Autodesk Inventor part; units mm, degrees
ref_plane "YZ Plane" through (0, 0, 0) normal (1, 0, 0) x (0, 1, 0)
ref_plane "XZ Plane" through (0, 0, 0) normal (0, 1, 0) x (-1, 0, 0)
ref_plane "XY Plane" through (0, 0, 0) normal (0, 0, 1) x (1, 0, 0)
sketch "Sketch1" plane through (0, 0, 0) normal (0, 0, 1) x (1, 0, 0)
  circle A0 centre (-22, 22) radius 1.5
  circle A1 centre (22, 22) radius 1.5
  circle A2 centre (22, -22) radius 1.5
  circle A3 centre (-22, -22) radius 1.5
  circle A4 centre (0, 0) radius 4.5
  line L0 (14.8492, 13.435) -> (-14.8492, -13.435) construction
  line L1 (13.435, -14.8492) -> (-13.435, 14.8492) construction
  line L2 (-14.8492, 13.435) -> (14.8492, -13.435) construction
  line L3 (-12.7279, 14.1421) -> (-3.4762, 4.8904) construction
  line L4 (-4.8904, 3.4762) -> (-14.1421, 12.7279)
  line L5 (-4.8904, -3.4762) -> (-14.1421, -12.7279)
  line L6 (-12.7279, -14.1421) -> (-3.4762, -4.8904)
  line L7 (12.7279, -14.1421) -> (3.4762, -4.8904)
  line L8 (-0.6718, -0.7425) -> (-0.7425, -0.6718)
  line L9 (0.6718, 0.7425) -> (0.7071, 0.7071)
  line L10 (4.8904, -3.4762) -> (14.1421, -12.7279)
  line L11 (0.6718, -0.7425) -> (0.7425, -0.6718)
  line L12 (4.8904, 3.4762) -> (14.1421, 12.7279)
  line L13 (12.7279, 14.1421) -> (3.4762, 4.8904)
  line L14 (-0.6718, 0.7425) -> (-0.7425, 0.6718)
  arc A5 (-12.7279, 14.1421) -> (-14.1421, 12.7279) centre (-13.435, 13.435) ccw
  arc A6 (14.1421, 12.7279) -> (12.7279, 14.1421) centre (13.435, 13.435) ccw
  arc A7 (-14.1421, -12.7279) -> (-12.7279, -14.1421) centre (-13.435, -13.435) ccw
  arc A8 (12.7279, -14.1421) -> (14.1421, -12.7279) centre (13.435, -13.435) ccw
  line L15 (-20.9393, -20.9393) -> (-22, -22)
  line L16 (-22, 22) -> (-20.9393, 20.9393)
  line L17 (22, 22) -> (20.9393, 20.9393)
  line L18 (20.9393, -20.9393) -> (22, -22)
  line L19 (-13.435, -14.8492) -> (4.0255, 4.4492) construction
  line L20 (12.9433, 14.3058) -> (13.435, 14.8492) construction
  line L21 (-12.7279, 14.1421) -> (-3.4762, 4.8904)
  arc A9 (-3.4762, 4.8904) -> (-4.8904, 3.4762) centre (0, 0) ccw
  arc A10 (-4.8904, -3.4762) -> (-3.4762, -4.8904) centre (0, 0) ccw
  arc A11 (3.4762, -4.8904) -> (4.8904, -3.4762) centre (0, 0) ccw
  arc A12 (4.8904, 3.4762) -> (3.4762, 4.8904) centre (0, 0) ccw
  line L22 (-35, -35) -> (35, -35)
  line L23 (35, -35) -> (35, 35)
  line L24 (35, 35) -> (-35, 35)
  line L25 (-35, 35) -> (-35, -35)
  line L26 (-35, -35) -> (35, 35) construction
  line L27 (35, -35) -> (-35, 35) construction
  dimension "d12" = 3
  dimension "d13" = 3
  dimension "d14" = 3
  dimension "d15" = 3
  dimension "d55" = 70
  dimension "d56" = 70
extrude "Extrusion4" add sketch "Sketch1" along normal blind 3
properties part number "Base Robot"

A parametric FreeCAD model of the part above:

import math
import FreeCAD as App
import Part
import Sketcher
from FreeCAD import Vector
Q = App.Units.Quantity


def add_polygon(sketch, points):
    """Adds a closed chain of lines whose ends are joined by coincident constraints."""
    first, n = sketch.GeometryCount, len(points)
    for a, b in zip(points, points[1:] + points[:1]):
        sketch.addGeometry(Part.LineSegment(App.Vector(*a, 0), App.Vector(*b, 0)), False)
    for i in range(n):
        sketch.addConstraint(Sketcher.Constraint("Coincident", first + i, 2, first + (i + 1) % n, 1))

doc = App.newDocument("Part")
body = doc.addObject("PartDesign::Body", "Body")

sketch1 = body.newObject("Sketcher::SketchObject", "Sketch")
sketch1.AttachmentSupport = (doc.getObject("XY_Plane"), [""])
sketch1.MapMode = "FlatFace"
add_polygon(sketch1, [(-35, 35), (-35, -35), (35, -35), (35, 35)])
sketch1.addGeometry(Part.Circle(Vector(-22, -22, 0), Vector(0, 0, 1), 1.5), False)
sketch1.addGeometry(Part.LineSegment(Vector(-14.1, -12.7, 0), Vector(-4.9, -3.5, 0)), False)
sketch1.addGeometry(Part.ArcOfCircle(Part.Circle(Vector(0, 0, 0), Vector(0, 0, 1), 6), math.radians(-144.59), math.radians(-125.41)), False)
sketch1.addGeometry(Part.LineSegment(Vector(-3.5, -4.9, 0), Vector(-12.7, -14.1, 0)), False)
sketch1.addGeometry(Part.ArcOfCircle(Part.Circle(Vector(-13.4, -13.4, 0), Vector(0, 0, 1), 1), math.radians(135), math.radians(315)), False)
sketch1.addGeometry(Part.Circle(Vector(22, -22, 0), Vector(0, 0, 1), 1.5), False)
sketch1.addGeometry(Part.ArcOfCircle(Part.Circle(Vector(13.4, -13.4, 0), Vector(0, 0, 1), 1), math.radians(-135), math.radians(45)), False)
sketch1.addGeometry(Part.LineSegment(Vector(12.7, -14.1, 0), Vector(3.5, -4.9, 0)), False)
sketch1.addGeometry(Part.ArcOfCircle(Part.Circle(Vector(0, 0, 0), Vector(0, 0, 1), 6), math.radians(-54.59), math.radians(-35.41)), False)
sketch1.addGeometry(Part.LineSegment(Vector(4.9, -3.5, 0), Vector(14.1, -12.7, 0)), False)
sketch1.addGeometry(Part.ArcOfCircle(Part.Circle(Vector(0, 0, 0), Vector(0, 0, 1), 6), math.radians(125.41), math.radians(144.59)), False)
sketch1.addGeometry(Part.LineSegment(Vector(-4.9, 3.5, 0), Vector(-14.1, 12.7, 0)), False)
sketch1.addGeometry(Part.ArcOfCircle(Part.Circle(Vector(-13.4, 13.4, 0), Vector(0, 0, 1), 1), math.radians(45), math.radians(225)), False)
sketch1.addGeometry(Part.LineSegment(Vector(-12.7, 14.1, 0), Vector(-3.5, 4.9, 0)), False)
sketch1.addGeometry(Part.Circle(Vector(-22, 22, 0), Vector(0, 0, 1), 1.5), False)
sketch1.addGeometry(Part.Circle(Vector(0, 0, 0), Vector(0, 0, 1), 4.5), False)
sketch1.addGeometry(Part.LineSegment(Vector(14.1, 12.7, 0), Vector(4.9, 3.5, 0)), False)
sketch1.addGeometry(Part.ArcOfCircle(Part.Circle(Vector(0, 0, 0), Vector(0, 0, 1), 6), math.radians(35.41), math.radians(54.59)), False)
sketch1.addGeometry(Part.LineSegment(Vector(3.5, 4.9, 0), Vector(12.7, 14.1, 0)), False)
sketch1.addGeometry(Part.ArcOfCircle(Part.Circle(Vector(13.4, 13.4, 0), Vector(0, 0, 1), 1), math.radians(-45), math.radians(135)), False)
sketch1.addGeometry(Part.Circle(Vector(22, 22, 0), Vector(0, 0, 1), 1.5), False)
sketch1.addConstraint([
    Sketcher.Constraint("Coincident", 5, 2, 6, 1),
    Sketcher.Constraint("Coincident", 6, 2, 7, 1),
    Sketcher.Constraint("Tangent", 7, 2, 8, 2),
    Sketcher.Constraint("Tangent", 8, 1, 5, 1),
    Sketcher.Constraint("Tangent", 10, 1, 11, 1),
    Sketcher.Constraint("Coincident", 11, 2, 12, 1),
    Sketcher.Constraint("Coincident", 12, 2, 13, 1),
    Sketcher.Constraint("Tangent", 13, 2, 10, 2),
    Sketcher.Constraint("Coincident", 14, 2, 15, 1),
    Sketcher.Constraint("Tangent", 15, 2, 16, 2),
    Sketcher.Constraint("Tangent", 16, 1, 17, 1),
    Sketcher.Constraint("Coincident", 17, 2, 14, 1),
    Sketcher.Constraint("Coincident", 20, 2, 21, 1),
    Sketcher.Constraint("Coincident", 21, 2, 22, 1),
    Sketcher.Constraint("Tangent", 22, 2, 23, 2),
    Sketcher.Constraint("Tangent", 23, 1, 20, 1),
    Sketcher.Constraint("Vertical", 0),
    Sketcher.Constraint("Horizontal", 1),
    Sketcher.Constraint("Vertical", 2),
    Sketcher.Constraint("Horizontal", 3),
    Sketcher.Constraint("Coincident", 6, 3, -1, 1),
    Sketcher.Constraint("Coincident", 12, 3, -1, 1),
    Sketcher.Constraint("Coincident", 14, 3, -1, 1),
    Sketcher.Constraint("Coincident", 19, 3, -1, 1),
    Sketcher.Constraint("Coincident", 21, 3, -1, 1),
    Sketcher.Constraint("Equal", 4, 9),
    Sketcher.Constraint("Equal", 8, 10),
    Sketcher.Constraint("Equal", 6, 12),
    Sketcher.Constraint("Equal", 12, 14),
    Sketcher.Constraint("Equal", 10, 16),
    Sketcher.Constraint("Equal", 9, 18),
    Sketcher.Constraint("Equal", 14, 21),
    Sketcher.Constraint("Equal", 16, 23),
    Sketcher.Constraint("Equal", 18, 24),
    Sketcher.Constraint("Symmetric", 10, 3, 16, 3, -1, 1),
    Sketcher.Constraint("Symmetric", 9, 3, 18, 3, -1, 1),
    Sketcher.Constraint("Symmetric", 8, 3, 23, 3, -1, 1),
    Sketcher.Constraint("Symmetric", 4, 3, 24, 3, -1, 1),
    Sketcher.Constraint("Symmetric", 0, 2, 2, 2, -1, 1),
    Sketcher.Constraint("Symmetric", 4, 3, 9, 3, -2),
    Sketcher.Constraint("Symmetric", 8, 3, 10, 3, -2),
    Sketcher.Constraint("Parallel", 5, 7),
    Sketcher.Constraint("Perpendicular", 7, 11),
    Sketcher.Constraint("Parallel", 11, 13),
    Sketcher.Constraint("Parallel", 13, 15),
    Sketcher.Constraint("Parallel", 15, 17),
    Sketcher.Constraint("Perpendicular", 17, 20),
    Sketcher.Constraint("Parallel", 20, 22),
    Sketcher.Constraint("Horizontal", 7, 2, 10, 1),
    Sketcher.Constraint("Equal", 3, 0),
    Sketcher.Constraint("Equal", 5, 7),
    Sketcher.Constraint("Diameter", 4, Q("3 mm")),
    Sketcher.Constraint("DistanceX", 1, 1, 1, 2, Q("70 mm")),
    Sketcher.Constraint("Diameter", 19, Q("9 mm")),
    Sketcher.Constraint("Radius", 6, Q("6 mm")),
    Sketcher.Constraint("Radius", 8, Q("1 mm")),
    Sketcher.Constraint("DistanceX", 4, 3, -1, 1, Q("22 mm")),
    Sketcher.Constraint("DistanceY", 4, 3, -1, 1, Q("22 mm")),
    Sketcher.Constraint("DistanceX", 8, 3, 10, 3, Q("26.87 mm")),
])
pad1 = body.newObject("PartDesign::Pad", "Pad")
pad1.Profile = sketch1
pad1.Length = 3

doc.recompute()
